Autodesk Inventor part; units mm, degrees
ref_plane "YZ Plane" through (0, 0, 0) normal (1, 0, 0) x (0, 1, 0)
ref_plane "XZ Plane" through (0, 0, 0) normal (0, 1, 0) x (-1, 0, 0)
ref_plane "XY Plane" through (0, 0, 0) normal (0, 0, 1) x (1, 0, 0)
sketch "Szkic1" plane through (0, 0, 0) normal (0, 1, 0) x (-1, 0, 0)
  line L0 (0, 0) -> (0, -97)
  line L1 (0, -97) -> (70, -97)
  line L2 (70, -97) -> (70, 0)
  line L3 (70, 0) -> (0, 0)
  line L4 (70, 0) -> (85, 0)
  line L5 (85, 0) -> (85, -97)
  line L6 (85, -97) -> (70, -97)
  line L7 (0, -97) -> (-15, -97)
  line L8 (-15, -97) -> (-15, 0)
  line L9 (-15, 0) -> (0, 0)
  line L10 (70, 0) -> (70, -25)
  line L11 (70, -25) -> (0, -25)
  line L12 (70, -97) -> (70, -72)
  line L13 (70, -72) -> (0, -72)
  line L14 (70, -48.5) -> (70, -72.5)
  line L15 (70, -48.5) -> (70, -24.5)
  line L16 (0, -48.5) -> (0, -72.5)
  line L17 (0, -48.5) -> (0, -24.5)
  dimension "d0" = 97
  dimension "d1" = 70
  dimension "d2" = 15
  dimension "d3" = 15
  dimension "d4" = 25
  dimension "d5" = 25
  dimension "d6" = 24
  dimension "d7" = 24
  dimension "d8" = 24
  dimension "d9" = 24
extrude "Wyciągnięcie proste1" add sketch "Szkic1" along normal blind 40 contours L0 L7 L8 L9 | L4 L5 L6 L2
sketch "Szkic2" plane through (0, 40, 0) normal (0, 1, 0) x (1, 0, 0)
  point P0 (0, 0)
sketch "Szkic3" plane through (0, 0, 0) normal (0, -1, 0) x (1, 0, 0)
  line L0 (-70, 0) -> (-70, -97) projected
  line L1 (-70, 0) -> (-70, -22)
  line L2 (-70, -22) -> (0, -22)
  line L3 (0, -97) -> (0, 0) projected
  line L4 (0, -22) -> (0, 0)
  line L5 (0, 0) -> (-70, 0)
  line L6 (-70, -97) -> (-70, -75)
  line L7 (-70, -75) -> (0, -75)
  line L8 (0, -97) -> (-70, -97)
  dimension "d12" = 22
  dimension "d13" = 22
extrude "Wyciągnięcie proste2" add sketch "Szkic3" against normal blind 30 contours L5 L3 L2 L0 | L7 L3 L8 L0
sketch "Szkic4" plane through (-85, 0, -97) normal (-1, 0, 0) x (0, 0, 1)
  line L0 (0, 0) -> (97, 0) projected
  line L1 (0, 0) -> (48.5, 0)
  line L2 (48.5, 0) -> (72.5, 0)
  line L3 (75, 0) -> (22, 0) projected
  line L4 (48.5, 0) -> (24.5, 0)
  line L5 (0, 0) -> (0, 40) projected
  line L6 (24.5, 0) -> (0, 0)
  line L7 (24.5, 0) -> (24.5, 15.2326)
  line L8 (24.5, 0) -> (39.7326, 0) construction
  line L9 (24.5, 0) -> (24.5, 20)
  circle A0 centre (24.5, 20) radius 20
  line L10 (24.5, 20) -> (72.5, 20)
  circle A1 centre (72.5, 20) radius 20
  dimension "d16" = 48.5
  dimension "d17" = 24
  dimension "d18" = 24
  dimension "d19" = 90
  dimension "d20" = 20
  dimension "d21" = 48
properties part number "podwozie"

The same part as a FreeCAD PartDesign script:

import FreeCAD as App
import Part
import Sketcher
from FreeCAD import Vector


def add_polygon(sketch, points):
    """Adds a closed chain of lines whose ends are joined by coincident constraints."""
    first, n = sketch.GeometryCount, len(points)
    for a, b in zip(points, points[1:] + points[:1]):
        sketch.addGeometry(Part.LineSegment(App.Vector(*a, 0), App.Vector(*b, 0)), False)
    for i in range(n):
        sketch.addConstraint(Sketcher.Constraint("Coincident", first + i, 2, first + (i + 1) % n, 1))

doc = App.newDocument("Part")
body = doc.addObject("PartDesign::Body", "Body")
body.AllowCompound = True

sketch1 = body.newObject("Sketcher::SketchObject", "Sketch")
sketch1.AttachmentSupport = (doc.getObject("XZ_Plane"), [""])
sketch1.MapMode = "FlatFace"
add_polygon(sketch1, [(0, -97), (0, 0), (15, 0), (15, -97)])
add_polygon(sketch1, [(-85, 0), (-70, 0), (-70, -97), (-85, -97)])
sketch1.addConstraint(Sketcher.Constraint("Vertical", 0))
sketch1.addConstraint(Sketcher.Constraint("Horizontal", 1))
sketch1.addConstraint(Sketcher.Constraint("Vertical", 2))
sketch1.addConstraint(Sketcher.Constraint("Horizontal", 3))
sketch1.addConstraint(Sketcher.Constraint("Horizontal", 4))
sketch1.addConstraint(Sketcher.Constraint("Vertical", 5))
sketch1.addConstraint(Sketcher.Constraint("Horizontal", 6))
sketch1.addConstraint(Sketcher.Constraint("Vertical", 7))
sketch1.addConstraint(Sketcher.Constraint("Coincident", 0, 2, -1, 1))
sketch1.addConstraint(Sketcher.Constraint("PointOnObject", 4, 2, -1))
sketch1.addConstraint(Sketcher.Constraint("Horizontal", 3, 2, 5, 2))
sketch1.addConstraint(Sketcher.Constraint("Equal", 3, 4))
sketch1.addConstraint(Sketcher.Constraint("DistanceX", 1, 1, 1, 2, 15.0))
sketch1.addConstraint(Sketcher.Constraint("DistanceY", 0, 1, 0, 2, 97.0))
sketch1.addConstraint(Sketcher.Constraint("DistanceX", 4, 2, -1, 1, 70.0))
pad1 = body.newObject("PartDesign::Pad", "Pad")
pad1.Profile = sketch1
pad1.Length = 40
pad1.Reversed = True

sketch2 = body.newObject("Sketcher::SketchObject", "Sketch001")
sketch2.AttachmentSupport = (doc.getObject("XZ_Plane"), [""])
sketch2.MapMode = "FlatFace"
add_polygon(sketch2, [(0, 0), (-70, 0), (-70, -22), (0, -22)])
add_polygon(sketch2, [(0, -75), (-70, -75), (-70, -97), (0, -97)])
sketch2.addConstraint(Sketcher.Constraint("Horizontal", 0))
sketch2.addConstraint(Sketcher.Constraint("Vertical", 1))
sketch2.addConstraint(Sketcher.Constraint("Horizontal", 2))
sketch2.addConstraint(Sketcher.Constraint("Vertical", 3))
sketch2.addConstraint(Sketcher.Constraint("Horizontal", 4))
sketch2.addConstraint(Sketcher.Constraint("Vertical", 5))
sketch2.addConstraint(Sketcher.Constraint("Horizontal", 6))
sketch2.addConstraint(Sketcher.Constraint("Vertical", 7))
sketch2.addConstraint(Sketcher.Constraint("Coincident", 3, 2, -1, 1))
sketch2.addConstraint(Sketcher.Constraint("PointOnObject", 6, 2, -2))
sketch2.addConstraint(Sketcher.Constraint("Vertical", 1, 2, 4, 2))
sketch2.addConstraint(Sketcher.Constraint("Equal", 3, 5))
sketch2.addConstraint(Sketcher.Constraint("DistanceY", 1, 2, 1, 1, 22.0))
sketch2.addConstraint(Sketcher.Constraint("DistanceX", 0, 2, 0, 1, 70.0))
sketch2.addConstraint(Sketcher.Constraint("DistanceY", 4, 2, -1, 1, 75.0))
pad2 = body.newObject("PartDesign::Pad", "Pad001")
pad2.Profile = sketch2
pad2.Length = 30
pad2.Reversed = True

doc.recompute()
